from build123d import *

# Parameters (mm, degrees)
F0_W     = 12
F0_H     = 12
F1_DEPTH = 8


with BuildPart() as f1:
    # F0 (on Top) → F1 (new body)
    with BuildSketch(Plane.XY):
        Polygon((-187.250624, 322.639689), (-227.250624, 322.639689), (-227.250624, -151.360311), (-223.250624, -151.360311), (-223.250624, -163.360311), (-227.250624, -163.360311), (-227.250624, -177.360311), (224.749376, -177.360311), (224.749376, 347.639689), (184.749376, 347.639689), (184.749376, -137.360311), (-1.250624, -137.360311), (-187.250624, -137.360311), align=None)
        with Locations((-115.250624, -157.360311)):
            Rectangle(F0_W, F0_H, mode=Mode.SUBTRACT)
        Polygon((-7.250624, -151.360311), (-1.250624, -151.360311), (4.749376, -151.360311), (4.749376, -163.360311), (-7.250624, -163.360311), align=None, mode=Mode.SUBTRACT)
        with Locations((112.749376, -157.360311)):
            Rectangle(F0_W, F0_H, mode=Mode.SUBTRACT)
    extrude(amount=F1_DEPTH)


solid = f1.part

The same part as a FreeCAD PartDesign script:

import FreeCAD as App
import Part
import Sketcher

V = App.Vector

doc = App.newDocument("Part")
params = doc.addObject("Spreadsheet::Sheet", "Params")
for row, (alias, value) in enumerate([
    ("sketch1_width", "40 mm"),
    ("sketch1_width2", "4 mm"),
    ("sketch1_width3", "452 mm"),
    ("sketch1_width4", "12 mm"),
    ("sketch1_height", "474 mm"),
    ("pad1_length", "8 mm"),
], start=1):
    params.set(f"A{row}", alias)
    params.set(f"B{row}", "=" + value)
    params.setAlias(f"B{row}", alias)

body = doc.addObject("PartDesign::Body", "Body")

# Sketch on XY plane
sketch1 = doc.addObject("Sketcher::SketchObject", "Sketch")
body.addObject(sketch1)
sketch1.AttachmentSupport = (doc.XY_Plane, [""])
sketch1.MapMode = "FlatFace"
sketch1.addGeometry([
    Part.LineSegment(V(-187.3, 322.6, 0), V(-227.3, 322.6, 0)),  # 0
    Part.LineSegment(V(-227.3, 322.6, 0), V(-227.3, -151.4, 0)),  # 1
    Part.LineSegment(V(-227.3, -151.4, 0), V(-223.3, -151.4, 0)),  # 2
    Part.LineSegment(V(-223.3, -151.4, 0), V(-223.3, -163.4, 0)),  # 3
    Part.LineSegment(V(-223.3, -163.4, 0), V(-227.3, -163.4, 0)),  # 4
    Part.LineSegment(V(-227.3, -163.4, 0), V(-227.3, -177.4, 0)),  # 5
    Part.LineSegment(V(-227.3, -177.4, 0), V(224.7, -177.4, 0)),  # 6
    Part.LineSegment(V(224.7, -177.4, 0), V(224.7, 347.6, 0)),  # 7
    Part.LineSegment(V(224.7, 347.6, 0), V(184.7, 347.6, 0)),  # 8
    Part.LineSegment(V(184.7, 347.6, 0), V(184.7, -137.4, 0)),  # 9
    Part.LineSegment(V(184.7, -137.4, 0), V(-187.3, -137.4, 0)),  # 10
    Part.LineSegment(V(-187.3, -137.4, 0), V(-187.3, 322.6, 0)),  # 11
    Part.LineSegment(V(-109.3, -163.4, 0), V(-121.3, -163.4, 0)),  # 12
    Part.LineSegment(V(-121.3, -163.4, 0), V(-121.3, -151.4, 0)),  # 13
    Part.LineSegment(V(-121.3, -151.4, 0), V(-109.3, -151.4, 0)),  # 14
    Part.LineSegment(V(-109.3, -151.4, 0), V(-109.3, -163.4, 0)),  # 15
    Part.LineSegment(V(-7.3, -163.4, 0), V(-7.3, -151.4, 0)),  # 16
    Part.LineSegment(V(-7.3, -151.4, 0), V(4.7, -151.4, 0)),  # 17
    Part.LineSegment(V(4.7, -151.4, 0), V(4.7, -163.4, 0)),  # 18
    Part.LineSegment(V(4.7, -163.4, 0), V(-7.3, -163.4, 0)),  # 19
    Part.LineSegment(V(118.7, -163.4, 0), V(106.7, -163.4, 0)),  # 20
    Part.LineSegment(V(106.7, -163.4, 0), V(106.7, -151.4, 0)),  # 21
    Part.LineSegment(V(106.7, -151.4, 0), V(118.7, -151.4, 0)),  # 22
    Part.LineSegment(V(118.7, -151.4, 0), V(118.7, -163.4, 0)),  # 23
], False)
sketch1.addConstraint([
    Sketcher.Constraint("Coincident", 0, 2, 1, 1),
    Sketcher.Constraint("Coincident", 1, 2, 2, 1),
    Sketcher.Constraint("Coincident", 2, 2, 3, 1),
    Sketcher.Constraint("Coincident", 3, 2, 4, 1),
    Sketcher.Constraint("Coincident", 4, 2, 5, 1),
    Sketcher.Constraint("Coincident", 5, 2, 6, 1),
    Sketcher.Constraint("Coincident", 6, 2, 7, 1),
    Sketcher.Constraint("Coincident", 7, 2, 8, 1),
    Sketcher.Constraint("Coincident", 8, 2, 9, 1),
    Sketcher.Constraint("Coincident", 9, 2, 10, 1),
    Sketcher.Constraint("Coincident", 10, 2, 11, 1),
    Sketcher.Constraint("Coincident", 11, 2, 0, 1),
    Sketcher.Constraint("Coincident", 12, 2, 13, 1),
    Sketcher.Constraint("Coincident", 13, 2, 14, 1),
    Sketcher.Constraint("Coincident", 14, 2, 15, 1),
    Sketcher.Constraint("Coincident", 15, 2, 12, 1),
    Sketcher.Constraint("Coincident", 16, 2, 17, 1),
    Sketcher.Constraint("Coincident", 17, 2, 18, 1),
    Sketcher.Constraint("Coincident", 18, 2, 19, 1),
    Sketcher.Constraint("Coincident", 19, 2, 16, 1),
    Sketcher.Constraint("Coincident", 20, 2, 21, 1),
    Sketcher.Constraint("Coincident", 21, 2, 22, 1),
    Sketcher.Constraint("Coincident", 22, 2, 23, 1),
    Sketcher.Constraint("Coincident", 23, 2, 20, 1),
    Sketcher.Constraint("Horizontal", 0),
    Sketcher.Constraint("Vertical", 1),
    Sketcher.Constraint("Horizontal", 2),
    Sketcher.Constraint("Vertical", 3),
    Sketcher.Constraint("Horizontal", 4),
    Sketcher.Constraint("Vertical", 5),
    Sketcher.Constraint("Horizontal", 6),
    Sketcher.Constraint("Vertical", 7),
    Sketcher.Constraint("Horizontal", 8),
    Sketcher.Constraint("Vertical", 9),
    Sketcher.Constraint("Horizontal", 10),
    Sketcher.Constraint("Vertical", 11),
    Sketcher.Constraint("Horizontal", 12),
    Sketcher.Constraint("Vertical", 13),
    Sketcher.Constraint("Horizontal", 14),
    Sketcher.Constraint("Vertical", 15),
    Sketcher.Constraint("Vertical", 16),
    Sketcher.Constraint("Horizontal", 17),
    Sketcher.Constraint("Vertical", 18),
    Sketcher.Constraint("Horizontal", 19),
    Sketcher.Constraint("Horizontal", 20),
    Sketcher.Constraint("Vertical", 21),
    Sketcher.Constraint("Horizontal", 22),
    Sketcher.Constraint("Vertical", 23),
    Sketcher.Constraint("Horizontal", 4, 2, 12, 2),
    Sketcher.Constraint("Horizontal", 2, 2, 13, 2),
    Sketcher.Constraint("Horizontal", 14, 2, 16, 2),
    Sketcher.Constraint("Horizontal", 15, 2, 18, 2),
    Sketcher.Constraint("Horizontal", 19, 2, 20, 2),
    Sketcher.Constraint("Horizontal", 17, 2, 21, 2),
    Sketcher.Constraint("Vertical", 1, 2, 4, 2),
    Sketcher.Constraint("Equal", 0, 8),
    Sketcher.Constraint("Equal", 14, 17),
    Sketcher.Constraint("Equal", 19, 20),
    Sketcher.Constraint("Equal", 22, 3),
    Sketcher.Constraint("DistanceX", 0, 2, 0, 1, 40.0),
    Sketcher.Constraint("DistanceX", 2, 1, 2, 2, 4.0),
    Sketcher.Constraint("DistanceX", 6, 1, 6, 2, 452.0),
    Sketcher.Constraint("DistanceX", 12, 2, 12, 1, 12.0),
    Sketcher.Constraint("DistanceY", 1, 2, 1, 1, 474.0),
    Sketcher.Constraint("DistanceY", 5, 2, 5, 1, 14.0),
    Sketcher.Constraint("DistanceY", 7, 1, 7, 2, 525.0),
    Sketcher.Constraint("DistanceY", 9, 2, 9, 1, 485.0),
    Sketcher.Constraint("DistanceX", 10, 2, 12, 2, 66.0),
    Sketcher.Constraint("DistanceX", 14, 2, 16, 2, 102.0),
    Sketcher.Constraint("DistanceX", 20, 2, 9, 2, 78.0),
    Sketcher.Constraint("DistanceY", -1, 1, 0, 2, 322.639689),
    Sketcher.Constraint("DistanceX", 0, 2, -1, 1, 227.250624),
])
sketch1.setExpression("Constraints[59]", "Params.sketch1_width")
sketch1.setExpression("Constraints[60]", "Params.sketch1_width2")
sketch1.setExpression("Constraints[61]", "Params.sketch1_width3")
sketch1.setExpression("Constraints[62]", "Params.sketch1_width4")
sketch1.setExpression("Constraints[63]", "Params.sketch1_height")
pad1 = doc.addObject("PartDesign::Pad", "Pad")
body.addObject(pad1)
pad1.Profile = sketch1
pad1.setExpression("Length", "Params.pad1_length")

doc.recompute()
